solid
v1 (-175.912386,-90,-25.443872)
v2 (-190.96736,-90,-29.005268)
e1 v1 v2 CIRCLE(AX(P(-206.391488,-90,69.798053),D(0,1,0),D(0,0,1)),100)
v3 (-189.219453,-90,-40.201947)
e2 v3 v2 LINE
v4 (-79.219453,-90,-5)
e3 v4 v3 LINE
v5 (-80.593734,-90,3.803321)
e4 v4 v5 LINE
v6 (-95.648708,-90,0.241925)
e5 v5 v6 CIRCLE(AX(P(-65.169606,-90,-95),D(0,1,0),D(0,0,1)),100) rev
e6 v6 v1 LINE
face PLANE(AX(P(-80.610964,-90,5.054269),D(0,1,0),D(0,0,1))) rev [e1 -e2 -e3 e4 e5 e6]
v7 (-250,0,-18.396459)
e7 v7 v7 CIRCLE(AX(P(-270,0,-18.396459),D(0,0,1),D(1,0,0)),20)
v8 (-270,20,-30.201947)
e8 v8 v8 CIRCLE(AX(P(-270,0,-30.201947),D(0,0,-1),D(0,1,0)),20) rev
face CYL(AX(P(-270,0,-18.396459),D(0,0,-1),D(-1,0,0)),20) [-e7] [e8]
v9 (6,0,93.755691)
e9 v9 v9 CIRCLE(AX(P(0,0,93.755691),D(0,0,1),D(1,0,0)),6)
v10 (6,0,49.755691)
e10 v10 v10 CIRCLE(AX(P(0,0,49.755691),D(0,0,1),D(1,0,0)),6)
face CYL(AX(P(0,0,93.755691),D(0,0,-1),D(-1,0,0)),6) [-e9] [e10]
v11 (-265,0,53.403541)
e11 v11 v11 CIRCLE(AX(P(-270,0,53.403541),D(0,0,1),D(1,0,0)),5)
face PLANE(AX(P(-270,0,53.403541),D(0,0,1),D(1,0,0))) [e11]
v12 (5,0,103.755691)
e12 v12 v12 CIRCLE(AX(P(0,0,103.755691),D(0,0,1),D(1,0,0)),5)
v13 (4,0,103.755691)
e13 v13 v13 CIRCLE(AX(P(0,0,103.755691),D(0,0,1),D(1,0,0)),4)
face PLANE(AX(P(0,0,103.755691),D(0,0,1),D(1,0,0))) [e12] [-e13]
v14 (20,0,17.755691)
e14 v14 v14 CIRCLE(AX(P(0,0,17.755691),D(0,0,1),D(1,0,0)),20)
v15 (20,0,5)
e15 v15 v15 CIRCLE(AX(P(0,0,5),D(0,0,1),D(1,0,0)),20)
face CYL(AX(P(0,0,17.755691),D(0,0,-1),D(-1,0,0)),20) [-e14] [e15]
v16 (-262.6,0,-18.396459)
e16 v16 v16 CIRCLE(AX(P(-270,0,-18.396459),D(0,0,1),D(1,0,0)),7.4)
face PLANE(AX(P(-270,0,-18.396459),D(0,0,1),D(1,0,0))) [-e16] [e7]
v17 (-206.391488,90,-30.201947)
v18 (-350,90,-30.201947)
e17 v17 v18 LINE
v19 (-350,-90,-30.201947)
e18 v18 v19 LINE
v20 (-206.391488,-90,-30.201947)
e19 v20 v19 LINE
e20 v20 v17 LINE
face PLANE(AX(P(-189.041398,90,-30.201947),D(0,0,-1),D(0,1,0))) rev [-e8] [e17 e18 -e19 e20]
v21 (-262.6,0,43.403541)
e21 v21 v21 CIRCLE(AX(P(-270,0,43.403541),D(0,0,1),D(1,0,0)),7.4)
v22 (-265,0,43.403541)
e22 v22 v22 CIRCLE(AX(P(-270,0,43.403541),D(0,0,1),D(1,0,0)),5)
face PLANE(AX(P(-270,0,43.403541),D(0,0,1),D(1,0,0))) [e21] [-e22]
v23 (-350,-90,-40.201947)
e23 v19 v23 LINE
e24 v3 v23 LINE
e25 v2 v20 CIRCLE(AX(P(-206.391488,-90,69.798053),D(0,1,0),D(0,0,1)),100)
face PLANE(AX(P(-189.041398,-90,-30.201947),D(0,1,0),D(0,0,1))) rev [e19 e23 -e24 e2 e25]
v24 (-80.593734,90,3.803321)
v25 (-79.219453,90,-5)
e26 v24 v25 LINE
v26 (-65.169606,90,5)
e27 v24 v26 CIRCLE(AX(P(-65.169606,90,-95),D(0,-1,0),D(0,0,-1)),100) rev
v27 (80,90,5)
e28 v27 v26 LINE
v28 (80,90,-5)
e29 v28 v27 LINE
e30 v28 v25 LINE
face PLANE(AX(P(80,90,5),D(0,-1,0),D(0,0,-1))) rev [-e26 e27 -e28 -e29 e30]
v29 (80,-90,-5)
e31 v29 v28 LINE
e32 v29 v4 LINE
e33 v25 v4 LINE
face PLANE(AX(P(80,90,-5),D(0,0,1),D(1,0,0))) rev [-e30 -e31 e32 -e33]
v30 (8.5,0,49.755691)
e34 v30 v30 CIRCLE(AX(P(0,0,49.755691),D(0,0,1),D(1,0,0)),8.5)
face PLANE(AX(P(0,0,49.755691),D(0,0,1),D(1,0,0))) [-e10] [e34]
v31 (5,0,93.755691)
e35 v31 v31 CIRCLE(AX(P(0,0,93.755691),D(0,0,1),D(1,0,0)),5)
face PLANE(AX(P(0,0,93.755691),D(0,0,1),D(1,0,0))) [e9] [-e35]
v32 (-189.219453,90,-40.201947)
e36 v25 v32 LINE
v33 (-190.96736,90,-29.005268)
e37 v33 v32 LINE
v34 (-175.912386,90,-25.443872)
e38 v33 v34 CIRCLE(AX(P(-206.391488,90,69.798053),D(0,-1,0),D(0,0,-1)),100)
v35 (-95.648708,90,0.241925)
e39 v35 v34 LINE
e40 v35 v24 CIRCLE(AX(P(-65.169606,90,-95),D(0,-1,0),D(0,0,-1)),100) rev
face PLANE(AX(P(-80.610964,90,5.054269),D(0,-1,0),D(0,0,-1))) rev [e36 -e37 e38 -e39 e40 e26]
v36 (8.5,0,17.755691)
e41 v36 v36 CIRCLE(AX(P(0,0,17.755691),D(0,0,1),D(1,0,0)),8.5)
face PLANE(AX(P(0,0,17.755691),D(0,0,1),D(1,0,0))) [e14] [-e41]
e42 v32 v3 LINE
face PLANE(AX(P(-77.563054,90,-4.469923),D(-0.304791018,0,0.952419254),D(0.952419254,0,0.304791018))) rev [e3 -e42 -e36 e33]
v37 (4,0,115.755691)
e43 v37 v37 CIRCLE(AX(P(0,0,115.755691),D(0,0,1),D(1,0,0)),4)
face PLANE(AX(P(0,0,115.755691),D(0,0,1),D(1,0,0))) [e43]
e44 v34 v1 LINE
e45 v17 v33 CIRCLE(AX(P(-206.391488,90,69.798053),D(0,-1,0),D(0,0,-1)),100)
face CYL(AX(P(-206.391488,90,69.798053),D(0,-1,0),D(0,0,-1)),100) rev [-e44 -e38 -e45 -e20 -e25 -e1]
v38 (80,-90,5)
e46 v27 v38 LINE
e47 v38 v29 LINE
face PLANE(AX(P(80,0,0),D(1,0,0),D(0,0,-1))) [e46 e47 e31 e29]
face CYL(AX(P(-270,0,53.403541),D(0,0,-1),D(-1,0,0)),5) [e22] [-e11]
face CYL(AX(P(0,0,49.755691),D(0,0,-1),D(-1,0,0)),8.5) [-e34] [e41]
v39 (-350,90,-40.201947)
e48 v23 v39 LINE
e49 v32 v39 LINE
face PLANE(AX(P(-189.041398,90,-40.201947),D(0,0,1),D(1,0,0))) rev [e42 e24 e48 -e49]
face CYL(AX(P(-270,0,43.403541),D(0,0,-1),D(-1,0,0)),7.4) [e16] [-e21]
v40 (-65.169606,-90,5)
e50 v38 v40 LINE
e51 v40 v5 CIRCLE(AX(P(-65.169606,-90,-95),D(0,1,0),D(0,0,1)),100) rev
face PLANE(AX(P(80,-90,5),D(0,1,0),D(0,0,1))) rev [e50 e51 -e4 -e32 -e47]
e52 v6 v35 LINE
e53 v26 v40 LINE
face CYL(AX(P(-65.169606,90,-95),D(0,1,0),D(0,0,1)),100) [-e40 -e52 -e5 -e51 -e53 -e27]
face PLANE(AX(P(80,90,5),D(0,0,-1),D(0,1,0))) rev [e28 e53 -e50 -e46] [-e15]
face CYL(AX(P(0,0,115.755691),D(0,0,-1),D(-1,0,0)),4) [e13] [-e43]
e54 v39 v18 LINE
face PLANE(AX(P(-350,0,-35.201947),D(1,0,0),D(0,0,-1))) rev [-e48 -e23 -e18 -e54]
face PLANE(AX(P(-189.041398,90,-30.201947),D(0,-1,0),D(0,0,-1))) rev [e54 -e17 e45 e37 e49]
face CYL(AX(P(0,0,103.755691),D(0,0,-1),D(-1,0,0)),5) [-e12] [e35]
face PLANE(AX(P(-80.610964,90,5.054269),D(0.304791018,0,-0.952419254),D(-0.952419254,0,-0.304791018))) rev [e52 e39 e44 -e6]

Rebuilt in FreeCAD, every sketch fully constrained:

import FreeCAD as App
import Part
import Sketcher

V = App.Vector


def edges_at(feature, points):
    """Names of the edges that pass closest to the given points."""
    edges = feature.Shape.Edges
    near = lambda p: min(range(len(edges)), key=lambda i: edges[i].distToShape(Part.Vertex(*p))[0])
    return sorted({f"Edge{near(p) + 1}" for p in points})


def add_polygon(sketch, points):
    """Adds a closed chain of lines whose ends are joined by coincident constraints."""
    first, n = sketch.GeometryCount, len(points)
    for a, b in zip(points, points[1:] + points[:1]):
        sketch.addGeometry(Part.LineSegment(App.Vector(*a, 0), App.Vector(*b, 0)), False)
    for i in range(n):
        sketch.addConstraint(Sketcher.Constraint("Coincident", first + i, 2, first + (i + 1) % n, 1))

doc = App.newDocument("Part")
body = doc.addObject("PartDesign::Body", "Body")

sketch1 = body.newObject("Sketcher::SketchObject", "Sketch")
sketch1.AttachmentSupport = (doc.getObject("YZ_Plane"), [""])
sketch1.MapMode = "FlatFace"
add_polygon(sketch1, [(90, 5), (-90, 5), (-90, -5), (90, -5)])
sketch1.addConstraint([
    Sketcher.Constraint("Horizontal", 0),
    Sketcher.Constraint("Vertical", 1),
    Sketcher.Constraint("Horizontal", 2),
    Sketcher.Constraint("Vertical", 3),
    Sketcher.Constraint("Symmetric", 0, 2, 2, 2, -1, 1),
    Sketcher.Constraint("DistanceX", 0, 2, 0, 1, 180.0),
    Sketcher.Constraint("DistanceY", 1, 2, 1, 1, 10.0),
])

sketch2 = body.newObject("Sketcher::SketchObject", "Sketch001")
sketch2.AttachmentSupport = (doc.getObject("XZ_Plane"), [""])
sketch2.MapMode = "FlatFace"
sketch2.addGeometry([
    Part.LineSegment(V(-350, -35, 0), V(-190, -35, 0)),
    Part.LineSegment(V(-190, -35, 0), V(-80, 0, 0)),
    Part.LineSegment(V(-80, 0, 0), V(80, 0, 0)),
], False)
sketch2.addConstraint([
    Sketcher.Constraint("Coincident", 0, 2, 1, 1),
    Sketcher.Constraint("Coincident", 1, 2, 2, 1),
    Sketcher.Constraint("Horizontal", 0),
    Sketcher.Constraint("Horizontal", 2),
    Sketcher.Constraint("Symmetric", 1, 2, 2, 2, -1, 1),
    Sketcher.Constraint("Equal", 0, 2),
    Sketcher.Constraint("DistanceX", 0, 1, 0, 2, 160.0),
    Sketcher.Constraint("DistanceX", 0, 1, -1, 1, 350.0),
    Sketcher.Constraint("Distance", 1, 115.495355),
])
doc.recompute()

additivepipe = body.newObject("PartDesign::AdditivePipe", "AdditivePipe")
additivepipe.Profile = sketch1
additivepipe.Spine = (sketch2, ["Edge1", "Edge2", "Edge3"])
additivepipe.Transition = "Right corner"

sketch3 = body.newObject("Sketcher::SketchObject", "Sketch002")
sketch3.AttachmentSupport = (doc.getObject("XY_Plane"), [""])
sketch3.MapMode = "FlatFace"
sketch3.AttachmentOffset = App.Placement(V(0, 0, 5), App.Rotation())
sketch3.addGeometry(Part.Circle(V(0, 0, 0), V(0, 0, 1), 20), False)
sketch3.addConstraint([
    Sketcher.Constraint("Coincident", 0, 3, -1, 1),
    Sketcher.Constraint("Diameter", 0, 40.0),
])
pad1 = body.newObject("PartDesign::Pad", "Pad")
pad1.Profile = sketch3
pad1.Length = 12.755691

sketch4 = body.newObject("Sketcher::SketchObject", "Sketch003")
sketch4.AttachmentSupport = (doc.getObject("XY_Plane"), [""])
sketch4.MapMode = "FlatFace"
sketch4.AttachmentOffset = App.Placement(V(0, 0, 17.755691), App.Rotation())
sketch4.addGeometry(Part.Circle(V(0, 0, 0), V(0, 0, 1), 8), False)
sketch4.addConstraint([
    Sketcher.Constraint("Coincident", 0, 3, -1, 1),
    Sketcher.Constraint("Diameter", 0, 17.0),
])
pad2 = body.newObject("PartDesign::Pad", "Pad001")
pad2.Profile = sketch4
pad2.Length = 32

sketch5 = body.newObject("Sketcher::SketchObject", "Sketch004")
sketch5.AttachmentSupport = (doc.getObject("XY_Plane"), [""])
sketch5.MapMode = "FlatFace"
sketch5.AttachmentOffset = App.Placement(V(0, 0, 49.755691), App.Rotation())
sketch5.addGeometry(Part.Circle(V(0, 0, 0), V(0, 0, 1), 6), False)
sketch5.addConstraint([
    Sketcher.Constraint("Coincident", 0, 3, -1, 1),
    Sketcher.Constraint("Diameter", 0, 12.0),
])
pad3 = body.newObject("PartDesign::Pad", "Pad002")
pad3.Profile = sketch5
pad3.Length = 44

sketch6 = body.newObject("Sketcher::SketchObject", "Sketch005")
sketch6.AttachmentSupport = (doc.getObject("XY_Plane"), [""])
sketch6.MapMode = "FlatFace"
sketch6.AttachmentOffset = App.Placement(V(0, 0, 93.755691), App.Rotation())
sketch6.addGeometry(Part.Circle(V(0, 0, 0), V(0, 0, 1), 5), False)
sketch6.addConstraint([
    Sketcher.Constraint("Coincident", 0, 3, -1, 1),
    Sketcher.Constraint("Diameter", 0, 10.0),
])
pad4 = body.newObject("PartDesign::Pad", "Pad003")
pad4.Profile = sketch6
pad4.Length = 10

sketch7 = body.newObject("Sketcher::SketchObject", "Sketch006")
sketch7.AttachmentSupport = (doc.getObject("XY_Plane"), [""])
sketch7.MapMode = "FlatFace"
sketch7.AttachmentOffset = App.Placement(V(0, 0, 103.755691), App.Rotation())
sketch7.addGeometry(Part.Circle(V(0, 0, 0), V(0, 0, 1), 4), False)
sketch7.addConstraint([
    Sketcher.Constraint("Coincident", 0, 3, -1, 1),
    Sketcher.Constraint("Diameter", 0, 8.0),
])
pad5 = body.newObject("PartDesign::Pad", "Pad004")
pad5.Profile = sketch7
pad5.Length = 12

sketch8 = body.newObject("Sketcher::SketchObject", "Sketch007")
sketch8.AttachmentSupport = (doc.getObject("XY_Plane"), [""])
sketch8.MapMode = "FlatFace"
sketch8.AttachmentOffset = App.Placement(V(0, 0, -30.201947), App.Rotation())
sketch8.addGeometry(Part.Circle(V(-270, 0, 0), V(0, 0, 1), 20), False)
sketch8.addConstraint([
    Sketcher.Constraint("PointOnObject", 0, 3, -1),
    Sketcher.Constraint("Diameter", 0, 40.0),
    Sketcher.Constraint("DistanceX", 0, 3, -1, 1, 270.0),
])
pad6 = body.newObject("PartDesign::Pad", "Pad005")
pad6.Profile = sketch8
pad6.Length = 11.805488

sketch9 = body.newObject("Sketcher::SketchObject", "Sketch008")
sketch9.AttachmentSupport = (doc.getObject("XY_Plane"), [""])
sketch9.MapMode = "FlatFace"
sketch9.AttachmentOffset = App.Placement(V(0, 0, -18.396459), App.Rotation())
sketch9.addGeometry(Part.Circle(V(-270, 0, 0), V(0, 0, 1), 7), False)
sketch9.addConstraint([
    Sketcher.Constraint("PointOnObject", 0, 3, -1),
    Sketcher.Constraint("Diameter", 0, 14.8),
    Sketcher.Constraint("DistanceX", 0, 3, -1, 1, 270.0),
])
pad7 = body.newObject("PartDesign::Pad", "Pad006")
pad7.Profile = sketch9
pad7.Length = 61.8

sketch10 = body.newObject("Sketcher::SketchObject", "Sketch009")
sketch10.AttachmentSupport = (doc.getObject("XY_Plane"), [""])
sketch10.MapMode = "FlatFace"
sketch10.AttachmentOffset = App.Placement(V(0, 0, 43.403541), App.Rotation())
sketch10.addGeometry(Part.Circle(V(-270, 0, 0), V(0, 0, 1), 5), False)
sketch10.addConstraint([
    Sketcher.Constraint("PointOnObject", 0, 3, -1),
    Sketcher.Constraint("Diameter", 0, 10.0),
    Sketcher.Constraint("DistanceX", 0, 3, -1, 1, 270.0),
])
pad8 = body.newObject("PartDesign::Pad", "Pad007")
pad8.Profile = sketch10
pad8.Length = 10
doc.recompute()

fillet = body.newObject("PartDesign::Fillet", "Fillet")
fillet.Base = (pad8, edges_at(pad8, [(-80.781, 0, 5), (-190.781, 0, -30.202)]))
fillet.Radius = 100

doc.recompute()
